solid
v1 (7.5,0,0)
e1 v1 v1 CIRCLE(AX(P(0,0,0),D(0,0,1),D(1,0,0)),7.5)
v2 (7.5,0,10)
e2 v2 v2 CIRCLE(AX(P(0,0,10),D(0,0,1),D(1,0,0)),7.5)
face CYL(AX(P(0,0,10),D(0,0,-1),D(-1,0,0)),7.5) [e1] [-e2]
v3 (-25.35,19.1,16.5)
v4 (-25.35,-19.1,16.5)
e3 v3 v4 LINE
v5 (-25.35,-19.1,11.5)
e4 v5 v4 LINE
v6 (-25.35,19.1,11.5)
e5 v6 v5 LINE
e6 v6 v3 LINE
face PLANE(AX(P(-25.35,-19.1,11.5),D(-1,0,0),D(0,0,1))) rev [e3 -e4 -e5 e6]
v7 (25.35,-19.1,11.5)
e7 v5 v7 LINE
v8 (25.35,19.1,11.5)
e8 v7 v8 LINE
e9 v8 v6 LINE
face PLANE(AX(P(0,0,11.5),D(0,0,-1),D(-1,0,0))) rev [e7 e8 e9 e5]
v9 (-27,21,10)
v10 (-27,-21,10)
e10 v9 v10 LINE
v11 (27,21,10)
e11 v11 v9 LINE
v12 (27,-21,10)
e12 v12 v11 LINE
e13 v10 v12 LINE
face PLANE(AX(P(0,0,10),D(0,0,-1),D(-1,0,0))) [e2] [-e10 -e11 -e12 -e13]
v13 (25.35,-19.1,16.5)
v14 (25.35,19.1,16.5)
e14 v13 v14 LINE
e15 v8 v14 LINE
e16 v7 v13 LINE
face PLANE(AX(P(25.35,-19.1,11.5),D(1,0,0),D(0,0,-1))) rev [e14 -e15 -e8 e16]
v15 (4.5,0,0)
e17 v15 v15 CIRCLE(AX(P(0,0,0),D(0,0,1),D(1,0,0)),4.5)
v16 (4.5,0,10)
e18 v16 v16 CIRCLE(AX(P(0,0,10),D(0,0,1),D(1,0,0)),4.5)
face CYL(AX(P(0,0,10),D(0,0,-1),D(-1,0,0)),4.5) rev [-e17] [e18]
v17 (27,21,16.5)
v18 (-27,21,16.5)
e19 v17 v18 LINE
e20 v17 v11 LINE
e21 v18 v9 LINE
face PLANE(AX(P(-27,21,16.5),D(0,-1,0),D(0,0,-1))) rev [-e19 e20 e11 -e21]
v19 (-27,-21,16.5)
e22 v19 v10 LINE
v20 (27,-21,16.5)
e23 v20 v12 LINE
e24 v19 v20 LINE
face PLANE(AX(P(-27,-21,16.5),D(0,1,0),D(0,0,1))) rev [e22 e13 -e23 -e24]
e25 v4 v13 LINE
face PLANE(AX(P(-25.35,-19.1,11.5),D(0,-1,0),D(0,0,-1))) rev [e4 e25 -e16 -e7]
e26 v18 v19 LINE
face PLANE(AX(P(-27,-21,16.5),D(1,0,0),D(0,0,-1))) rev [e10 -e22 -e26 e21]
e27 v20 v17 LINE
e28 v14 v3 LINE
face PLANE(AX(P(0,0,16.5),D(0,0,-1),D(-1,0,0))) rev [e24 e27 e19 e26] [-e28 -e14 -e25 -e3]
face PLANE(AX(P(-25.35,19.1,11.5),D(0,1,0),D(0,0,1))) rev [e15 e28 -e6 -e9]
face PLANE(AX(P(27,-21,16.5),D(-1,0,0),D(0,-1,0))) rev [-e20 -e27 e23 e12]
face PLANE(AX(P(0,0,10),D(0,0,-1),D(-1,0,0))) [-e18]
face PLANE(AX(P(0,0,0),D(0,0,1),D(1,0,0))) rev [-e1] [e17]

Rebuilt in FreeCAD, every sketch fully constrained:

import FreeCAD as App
import Part
import Sketcher

doc = App.newDocument("Part")
params = doc.addObject("Spreadsheet::Sheet", "Params")
for row, (alias, value) in enumerate([
    ("sketch1_diameter", "15 mm"),
    ("sketch1_diameter2", "9 mm"),
    ("pad1_length", "10 mm"),
    ("sketch2_width", "54 mm"),
    ("sketch2_height", "42 mm"),
    ("pad2_length", "6.5 mm"),
    ("sketch3_width", "50.7 mm"),
    ("sketch3_height", "38.2 mm"),
    ("pocket1_length", "5 mm"),
], start=1):
    params.set(f"A{row}", alias)
    params.set(f"B{row}", "=" + value)
    params.setAlias(f"B{row}", alias)

body = doc.addObject("PartDesign::Body", "Body")

sketch1 = body.newObject("Sketcher::SketchObject", "Sketch")
sketch1.AttachmentSupport = (doc.getObject("XY_Plane"), [""])
sketch1.MapMode = "FlatFace"
sketch1.addGeometry([
    Part.Circle(App.Vector(0, 0, 0), App.Vector(0, 0, 1), 7.5),
    Part.Circle(App.Vector(0, 0, 0), App.Vector(0, 0, 1), 4.5),
], False)
sketch1.addConstraint([
    Sketcher.Constraint("Coincident", 0, 3, -1, 1),
    Sketcher.Constraint("Coincident", 1, 3, -1, 1),
    Sketcher.Constraint("Diameter", 0, 15.0),
    Sketcher.Constraint("Diameter", 1, 9.0),
])
sketch1.setExpression("Constraints[2]", "Params.sketch1_diameter")
sketch1.setExpression("Constraints[3]", "Params.sketch1_diameter2")
pad1 = body.newObject("PartDesign::Pad", "Pad")
pad1.Profile = sketch1
pad1.setExpression("Length", "Params.pad1_length")

sketch2 = body.newObject("Sketcher::SketchObject", "Sketch001")
sketch2.AttachmentSupport = (doc.getObject("XY_Plane"), [""])
sketch2.MapMode = "FlatFace"
sketch2.AttachmentOffset = App.Placement(App.Vector(0, 0, 10), App.Rotation())
sketch2.addGeometry([
    Part.LineSegment(App.Vector(-27, 21, 0), App.Vector(-27, -21, 0)),
    Part.LineSegment(App.Vector(-27, -21, 0), App.Vector(27, -21, 0)),
    Part.LineSegment(App.Vector(27, -21, 0), App.Vector(27, 21, 0)),
    Part.LineSegment(App.Vector(27, 21, 0), App.Vector(-27, 21, 0)),
], False)
sketch2.addConstraint([
    Sketcher.Constraint("Coincident", 0, 2, 1, 1),
    Sketcher.Constraint("Coincident", 1, 2, 2, 1),
    Sketcher.Constraint("Coincident", 2, 2, 3, 1),
    Sketcher.Constraint("Coincident", 3, 2, 0, 1),
    Sketcher.Constraint("Vertical", 0),
    Sketcher.Constraint("Horizontal", 1),
    Sketcher.Constraint("Vertical", 2),
    Sketcher.Constraint("Horizontal", 3),
    Sketcher.Constraint("Symmetric", 0, 2, 2, 2, -1, 1),
    Sketcher.Constraint("DistanceX", 1, 1, 1, 2, 54.0),
    Sketcher.Constraint("DistanceY", 0, 2, 0, 1, 42.0),
])
sketch2.setExpression("Constraints[9]", "Params.sketch2_width")
sketch2.setExpression("Constraints[10]", "Params.sketch2_height")
pad2 = body.newObject("PartDesign::Pad", "Pad001")
pad2.Profile = sketch2
pad2.setExpression("Length", "Params.pad2_length")

sketch3 = body.newObject("Sketcher::SketchObject", "Sketch002")
sketch3.AttachmentSupport = (doc.getObject("XY_Plane"), [""])
sketch3.MapMode = "FlatFace"
sketch3.AttachmentOffset = App.Placement(App.Vector(0, 0, 16.5), App.Rotation())
sketch3.addGeometry([
    Part.LineSegment(App.Vector(-25, 19, 0), App.Vector(-25, -19, 0)),
    Part.LineSegment(App.Vector(-25, -19, 0), App.Vector(25, -19, 0)),
    Part.LineSegment(App.Vector(25, -19, 0), App.Vector(25, 19, 0)),
    Part.LineSegment(App.Vector(25, 19, 0), App.Vector(-25, 19, 0)),
], False)
sketch3.addConstraint([
    Sketcher.Constraint("Coincident", 0, 2, 1, 1),
    Sketcher.Constraint("Coincident", 1, 2, 2, 1),
    Sketcher.Constraint("Coincident", 2, 2, 3, 1),
    Sketcher.Constraint("Coincident", 3, 2, 0, 1),
    Sketcher.Constraint("Vertical", 0),
    Sketcher.Constraint("Horizontal", 1),
    Sketcher.Constraint("Vertical", 2),
    Sketcher.Constraint("Horizontal", 3),
    Sketcher.Constraint("Symmetric", 0, 2, 2, 2, -1, 1),
    Sketcher.Constraint("DistanceX", 1, 1, 1, 2, 50.7),
    Sketcher.Constraint("DistanceY", 0, 2, 0, 1, 38.2),
])
sketch3.setExpression("Constraints[9]", "Params.sketch3_width")
sketch3.setExpression("Constraints[10]", "Params.sketch3_height")
pocket1 = body.newObject("PartDesign::Pocket", "Pocket")
pocket1.Profile = sketch3
pocket1.setExpression("Length", "Params.pocket1_length")

doc.recompute()
